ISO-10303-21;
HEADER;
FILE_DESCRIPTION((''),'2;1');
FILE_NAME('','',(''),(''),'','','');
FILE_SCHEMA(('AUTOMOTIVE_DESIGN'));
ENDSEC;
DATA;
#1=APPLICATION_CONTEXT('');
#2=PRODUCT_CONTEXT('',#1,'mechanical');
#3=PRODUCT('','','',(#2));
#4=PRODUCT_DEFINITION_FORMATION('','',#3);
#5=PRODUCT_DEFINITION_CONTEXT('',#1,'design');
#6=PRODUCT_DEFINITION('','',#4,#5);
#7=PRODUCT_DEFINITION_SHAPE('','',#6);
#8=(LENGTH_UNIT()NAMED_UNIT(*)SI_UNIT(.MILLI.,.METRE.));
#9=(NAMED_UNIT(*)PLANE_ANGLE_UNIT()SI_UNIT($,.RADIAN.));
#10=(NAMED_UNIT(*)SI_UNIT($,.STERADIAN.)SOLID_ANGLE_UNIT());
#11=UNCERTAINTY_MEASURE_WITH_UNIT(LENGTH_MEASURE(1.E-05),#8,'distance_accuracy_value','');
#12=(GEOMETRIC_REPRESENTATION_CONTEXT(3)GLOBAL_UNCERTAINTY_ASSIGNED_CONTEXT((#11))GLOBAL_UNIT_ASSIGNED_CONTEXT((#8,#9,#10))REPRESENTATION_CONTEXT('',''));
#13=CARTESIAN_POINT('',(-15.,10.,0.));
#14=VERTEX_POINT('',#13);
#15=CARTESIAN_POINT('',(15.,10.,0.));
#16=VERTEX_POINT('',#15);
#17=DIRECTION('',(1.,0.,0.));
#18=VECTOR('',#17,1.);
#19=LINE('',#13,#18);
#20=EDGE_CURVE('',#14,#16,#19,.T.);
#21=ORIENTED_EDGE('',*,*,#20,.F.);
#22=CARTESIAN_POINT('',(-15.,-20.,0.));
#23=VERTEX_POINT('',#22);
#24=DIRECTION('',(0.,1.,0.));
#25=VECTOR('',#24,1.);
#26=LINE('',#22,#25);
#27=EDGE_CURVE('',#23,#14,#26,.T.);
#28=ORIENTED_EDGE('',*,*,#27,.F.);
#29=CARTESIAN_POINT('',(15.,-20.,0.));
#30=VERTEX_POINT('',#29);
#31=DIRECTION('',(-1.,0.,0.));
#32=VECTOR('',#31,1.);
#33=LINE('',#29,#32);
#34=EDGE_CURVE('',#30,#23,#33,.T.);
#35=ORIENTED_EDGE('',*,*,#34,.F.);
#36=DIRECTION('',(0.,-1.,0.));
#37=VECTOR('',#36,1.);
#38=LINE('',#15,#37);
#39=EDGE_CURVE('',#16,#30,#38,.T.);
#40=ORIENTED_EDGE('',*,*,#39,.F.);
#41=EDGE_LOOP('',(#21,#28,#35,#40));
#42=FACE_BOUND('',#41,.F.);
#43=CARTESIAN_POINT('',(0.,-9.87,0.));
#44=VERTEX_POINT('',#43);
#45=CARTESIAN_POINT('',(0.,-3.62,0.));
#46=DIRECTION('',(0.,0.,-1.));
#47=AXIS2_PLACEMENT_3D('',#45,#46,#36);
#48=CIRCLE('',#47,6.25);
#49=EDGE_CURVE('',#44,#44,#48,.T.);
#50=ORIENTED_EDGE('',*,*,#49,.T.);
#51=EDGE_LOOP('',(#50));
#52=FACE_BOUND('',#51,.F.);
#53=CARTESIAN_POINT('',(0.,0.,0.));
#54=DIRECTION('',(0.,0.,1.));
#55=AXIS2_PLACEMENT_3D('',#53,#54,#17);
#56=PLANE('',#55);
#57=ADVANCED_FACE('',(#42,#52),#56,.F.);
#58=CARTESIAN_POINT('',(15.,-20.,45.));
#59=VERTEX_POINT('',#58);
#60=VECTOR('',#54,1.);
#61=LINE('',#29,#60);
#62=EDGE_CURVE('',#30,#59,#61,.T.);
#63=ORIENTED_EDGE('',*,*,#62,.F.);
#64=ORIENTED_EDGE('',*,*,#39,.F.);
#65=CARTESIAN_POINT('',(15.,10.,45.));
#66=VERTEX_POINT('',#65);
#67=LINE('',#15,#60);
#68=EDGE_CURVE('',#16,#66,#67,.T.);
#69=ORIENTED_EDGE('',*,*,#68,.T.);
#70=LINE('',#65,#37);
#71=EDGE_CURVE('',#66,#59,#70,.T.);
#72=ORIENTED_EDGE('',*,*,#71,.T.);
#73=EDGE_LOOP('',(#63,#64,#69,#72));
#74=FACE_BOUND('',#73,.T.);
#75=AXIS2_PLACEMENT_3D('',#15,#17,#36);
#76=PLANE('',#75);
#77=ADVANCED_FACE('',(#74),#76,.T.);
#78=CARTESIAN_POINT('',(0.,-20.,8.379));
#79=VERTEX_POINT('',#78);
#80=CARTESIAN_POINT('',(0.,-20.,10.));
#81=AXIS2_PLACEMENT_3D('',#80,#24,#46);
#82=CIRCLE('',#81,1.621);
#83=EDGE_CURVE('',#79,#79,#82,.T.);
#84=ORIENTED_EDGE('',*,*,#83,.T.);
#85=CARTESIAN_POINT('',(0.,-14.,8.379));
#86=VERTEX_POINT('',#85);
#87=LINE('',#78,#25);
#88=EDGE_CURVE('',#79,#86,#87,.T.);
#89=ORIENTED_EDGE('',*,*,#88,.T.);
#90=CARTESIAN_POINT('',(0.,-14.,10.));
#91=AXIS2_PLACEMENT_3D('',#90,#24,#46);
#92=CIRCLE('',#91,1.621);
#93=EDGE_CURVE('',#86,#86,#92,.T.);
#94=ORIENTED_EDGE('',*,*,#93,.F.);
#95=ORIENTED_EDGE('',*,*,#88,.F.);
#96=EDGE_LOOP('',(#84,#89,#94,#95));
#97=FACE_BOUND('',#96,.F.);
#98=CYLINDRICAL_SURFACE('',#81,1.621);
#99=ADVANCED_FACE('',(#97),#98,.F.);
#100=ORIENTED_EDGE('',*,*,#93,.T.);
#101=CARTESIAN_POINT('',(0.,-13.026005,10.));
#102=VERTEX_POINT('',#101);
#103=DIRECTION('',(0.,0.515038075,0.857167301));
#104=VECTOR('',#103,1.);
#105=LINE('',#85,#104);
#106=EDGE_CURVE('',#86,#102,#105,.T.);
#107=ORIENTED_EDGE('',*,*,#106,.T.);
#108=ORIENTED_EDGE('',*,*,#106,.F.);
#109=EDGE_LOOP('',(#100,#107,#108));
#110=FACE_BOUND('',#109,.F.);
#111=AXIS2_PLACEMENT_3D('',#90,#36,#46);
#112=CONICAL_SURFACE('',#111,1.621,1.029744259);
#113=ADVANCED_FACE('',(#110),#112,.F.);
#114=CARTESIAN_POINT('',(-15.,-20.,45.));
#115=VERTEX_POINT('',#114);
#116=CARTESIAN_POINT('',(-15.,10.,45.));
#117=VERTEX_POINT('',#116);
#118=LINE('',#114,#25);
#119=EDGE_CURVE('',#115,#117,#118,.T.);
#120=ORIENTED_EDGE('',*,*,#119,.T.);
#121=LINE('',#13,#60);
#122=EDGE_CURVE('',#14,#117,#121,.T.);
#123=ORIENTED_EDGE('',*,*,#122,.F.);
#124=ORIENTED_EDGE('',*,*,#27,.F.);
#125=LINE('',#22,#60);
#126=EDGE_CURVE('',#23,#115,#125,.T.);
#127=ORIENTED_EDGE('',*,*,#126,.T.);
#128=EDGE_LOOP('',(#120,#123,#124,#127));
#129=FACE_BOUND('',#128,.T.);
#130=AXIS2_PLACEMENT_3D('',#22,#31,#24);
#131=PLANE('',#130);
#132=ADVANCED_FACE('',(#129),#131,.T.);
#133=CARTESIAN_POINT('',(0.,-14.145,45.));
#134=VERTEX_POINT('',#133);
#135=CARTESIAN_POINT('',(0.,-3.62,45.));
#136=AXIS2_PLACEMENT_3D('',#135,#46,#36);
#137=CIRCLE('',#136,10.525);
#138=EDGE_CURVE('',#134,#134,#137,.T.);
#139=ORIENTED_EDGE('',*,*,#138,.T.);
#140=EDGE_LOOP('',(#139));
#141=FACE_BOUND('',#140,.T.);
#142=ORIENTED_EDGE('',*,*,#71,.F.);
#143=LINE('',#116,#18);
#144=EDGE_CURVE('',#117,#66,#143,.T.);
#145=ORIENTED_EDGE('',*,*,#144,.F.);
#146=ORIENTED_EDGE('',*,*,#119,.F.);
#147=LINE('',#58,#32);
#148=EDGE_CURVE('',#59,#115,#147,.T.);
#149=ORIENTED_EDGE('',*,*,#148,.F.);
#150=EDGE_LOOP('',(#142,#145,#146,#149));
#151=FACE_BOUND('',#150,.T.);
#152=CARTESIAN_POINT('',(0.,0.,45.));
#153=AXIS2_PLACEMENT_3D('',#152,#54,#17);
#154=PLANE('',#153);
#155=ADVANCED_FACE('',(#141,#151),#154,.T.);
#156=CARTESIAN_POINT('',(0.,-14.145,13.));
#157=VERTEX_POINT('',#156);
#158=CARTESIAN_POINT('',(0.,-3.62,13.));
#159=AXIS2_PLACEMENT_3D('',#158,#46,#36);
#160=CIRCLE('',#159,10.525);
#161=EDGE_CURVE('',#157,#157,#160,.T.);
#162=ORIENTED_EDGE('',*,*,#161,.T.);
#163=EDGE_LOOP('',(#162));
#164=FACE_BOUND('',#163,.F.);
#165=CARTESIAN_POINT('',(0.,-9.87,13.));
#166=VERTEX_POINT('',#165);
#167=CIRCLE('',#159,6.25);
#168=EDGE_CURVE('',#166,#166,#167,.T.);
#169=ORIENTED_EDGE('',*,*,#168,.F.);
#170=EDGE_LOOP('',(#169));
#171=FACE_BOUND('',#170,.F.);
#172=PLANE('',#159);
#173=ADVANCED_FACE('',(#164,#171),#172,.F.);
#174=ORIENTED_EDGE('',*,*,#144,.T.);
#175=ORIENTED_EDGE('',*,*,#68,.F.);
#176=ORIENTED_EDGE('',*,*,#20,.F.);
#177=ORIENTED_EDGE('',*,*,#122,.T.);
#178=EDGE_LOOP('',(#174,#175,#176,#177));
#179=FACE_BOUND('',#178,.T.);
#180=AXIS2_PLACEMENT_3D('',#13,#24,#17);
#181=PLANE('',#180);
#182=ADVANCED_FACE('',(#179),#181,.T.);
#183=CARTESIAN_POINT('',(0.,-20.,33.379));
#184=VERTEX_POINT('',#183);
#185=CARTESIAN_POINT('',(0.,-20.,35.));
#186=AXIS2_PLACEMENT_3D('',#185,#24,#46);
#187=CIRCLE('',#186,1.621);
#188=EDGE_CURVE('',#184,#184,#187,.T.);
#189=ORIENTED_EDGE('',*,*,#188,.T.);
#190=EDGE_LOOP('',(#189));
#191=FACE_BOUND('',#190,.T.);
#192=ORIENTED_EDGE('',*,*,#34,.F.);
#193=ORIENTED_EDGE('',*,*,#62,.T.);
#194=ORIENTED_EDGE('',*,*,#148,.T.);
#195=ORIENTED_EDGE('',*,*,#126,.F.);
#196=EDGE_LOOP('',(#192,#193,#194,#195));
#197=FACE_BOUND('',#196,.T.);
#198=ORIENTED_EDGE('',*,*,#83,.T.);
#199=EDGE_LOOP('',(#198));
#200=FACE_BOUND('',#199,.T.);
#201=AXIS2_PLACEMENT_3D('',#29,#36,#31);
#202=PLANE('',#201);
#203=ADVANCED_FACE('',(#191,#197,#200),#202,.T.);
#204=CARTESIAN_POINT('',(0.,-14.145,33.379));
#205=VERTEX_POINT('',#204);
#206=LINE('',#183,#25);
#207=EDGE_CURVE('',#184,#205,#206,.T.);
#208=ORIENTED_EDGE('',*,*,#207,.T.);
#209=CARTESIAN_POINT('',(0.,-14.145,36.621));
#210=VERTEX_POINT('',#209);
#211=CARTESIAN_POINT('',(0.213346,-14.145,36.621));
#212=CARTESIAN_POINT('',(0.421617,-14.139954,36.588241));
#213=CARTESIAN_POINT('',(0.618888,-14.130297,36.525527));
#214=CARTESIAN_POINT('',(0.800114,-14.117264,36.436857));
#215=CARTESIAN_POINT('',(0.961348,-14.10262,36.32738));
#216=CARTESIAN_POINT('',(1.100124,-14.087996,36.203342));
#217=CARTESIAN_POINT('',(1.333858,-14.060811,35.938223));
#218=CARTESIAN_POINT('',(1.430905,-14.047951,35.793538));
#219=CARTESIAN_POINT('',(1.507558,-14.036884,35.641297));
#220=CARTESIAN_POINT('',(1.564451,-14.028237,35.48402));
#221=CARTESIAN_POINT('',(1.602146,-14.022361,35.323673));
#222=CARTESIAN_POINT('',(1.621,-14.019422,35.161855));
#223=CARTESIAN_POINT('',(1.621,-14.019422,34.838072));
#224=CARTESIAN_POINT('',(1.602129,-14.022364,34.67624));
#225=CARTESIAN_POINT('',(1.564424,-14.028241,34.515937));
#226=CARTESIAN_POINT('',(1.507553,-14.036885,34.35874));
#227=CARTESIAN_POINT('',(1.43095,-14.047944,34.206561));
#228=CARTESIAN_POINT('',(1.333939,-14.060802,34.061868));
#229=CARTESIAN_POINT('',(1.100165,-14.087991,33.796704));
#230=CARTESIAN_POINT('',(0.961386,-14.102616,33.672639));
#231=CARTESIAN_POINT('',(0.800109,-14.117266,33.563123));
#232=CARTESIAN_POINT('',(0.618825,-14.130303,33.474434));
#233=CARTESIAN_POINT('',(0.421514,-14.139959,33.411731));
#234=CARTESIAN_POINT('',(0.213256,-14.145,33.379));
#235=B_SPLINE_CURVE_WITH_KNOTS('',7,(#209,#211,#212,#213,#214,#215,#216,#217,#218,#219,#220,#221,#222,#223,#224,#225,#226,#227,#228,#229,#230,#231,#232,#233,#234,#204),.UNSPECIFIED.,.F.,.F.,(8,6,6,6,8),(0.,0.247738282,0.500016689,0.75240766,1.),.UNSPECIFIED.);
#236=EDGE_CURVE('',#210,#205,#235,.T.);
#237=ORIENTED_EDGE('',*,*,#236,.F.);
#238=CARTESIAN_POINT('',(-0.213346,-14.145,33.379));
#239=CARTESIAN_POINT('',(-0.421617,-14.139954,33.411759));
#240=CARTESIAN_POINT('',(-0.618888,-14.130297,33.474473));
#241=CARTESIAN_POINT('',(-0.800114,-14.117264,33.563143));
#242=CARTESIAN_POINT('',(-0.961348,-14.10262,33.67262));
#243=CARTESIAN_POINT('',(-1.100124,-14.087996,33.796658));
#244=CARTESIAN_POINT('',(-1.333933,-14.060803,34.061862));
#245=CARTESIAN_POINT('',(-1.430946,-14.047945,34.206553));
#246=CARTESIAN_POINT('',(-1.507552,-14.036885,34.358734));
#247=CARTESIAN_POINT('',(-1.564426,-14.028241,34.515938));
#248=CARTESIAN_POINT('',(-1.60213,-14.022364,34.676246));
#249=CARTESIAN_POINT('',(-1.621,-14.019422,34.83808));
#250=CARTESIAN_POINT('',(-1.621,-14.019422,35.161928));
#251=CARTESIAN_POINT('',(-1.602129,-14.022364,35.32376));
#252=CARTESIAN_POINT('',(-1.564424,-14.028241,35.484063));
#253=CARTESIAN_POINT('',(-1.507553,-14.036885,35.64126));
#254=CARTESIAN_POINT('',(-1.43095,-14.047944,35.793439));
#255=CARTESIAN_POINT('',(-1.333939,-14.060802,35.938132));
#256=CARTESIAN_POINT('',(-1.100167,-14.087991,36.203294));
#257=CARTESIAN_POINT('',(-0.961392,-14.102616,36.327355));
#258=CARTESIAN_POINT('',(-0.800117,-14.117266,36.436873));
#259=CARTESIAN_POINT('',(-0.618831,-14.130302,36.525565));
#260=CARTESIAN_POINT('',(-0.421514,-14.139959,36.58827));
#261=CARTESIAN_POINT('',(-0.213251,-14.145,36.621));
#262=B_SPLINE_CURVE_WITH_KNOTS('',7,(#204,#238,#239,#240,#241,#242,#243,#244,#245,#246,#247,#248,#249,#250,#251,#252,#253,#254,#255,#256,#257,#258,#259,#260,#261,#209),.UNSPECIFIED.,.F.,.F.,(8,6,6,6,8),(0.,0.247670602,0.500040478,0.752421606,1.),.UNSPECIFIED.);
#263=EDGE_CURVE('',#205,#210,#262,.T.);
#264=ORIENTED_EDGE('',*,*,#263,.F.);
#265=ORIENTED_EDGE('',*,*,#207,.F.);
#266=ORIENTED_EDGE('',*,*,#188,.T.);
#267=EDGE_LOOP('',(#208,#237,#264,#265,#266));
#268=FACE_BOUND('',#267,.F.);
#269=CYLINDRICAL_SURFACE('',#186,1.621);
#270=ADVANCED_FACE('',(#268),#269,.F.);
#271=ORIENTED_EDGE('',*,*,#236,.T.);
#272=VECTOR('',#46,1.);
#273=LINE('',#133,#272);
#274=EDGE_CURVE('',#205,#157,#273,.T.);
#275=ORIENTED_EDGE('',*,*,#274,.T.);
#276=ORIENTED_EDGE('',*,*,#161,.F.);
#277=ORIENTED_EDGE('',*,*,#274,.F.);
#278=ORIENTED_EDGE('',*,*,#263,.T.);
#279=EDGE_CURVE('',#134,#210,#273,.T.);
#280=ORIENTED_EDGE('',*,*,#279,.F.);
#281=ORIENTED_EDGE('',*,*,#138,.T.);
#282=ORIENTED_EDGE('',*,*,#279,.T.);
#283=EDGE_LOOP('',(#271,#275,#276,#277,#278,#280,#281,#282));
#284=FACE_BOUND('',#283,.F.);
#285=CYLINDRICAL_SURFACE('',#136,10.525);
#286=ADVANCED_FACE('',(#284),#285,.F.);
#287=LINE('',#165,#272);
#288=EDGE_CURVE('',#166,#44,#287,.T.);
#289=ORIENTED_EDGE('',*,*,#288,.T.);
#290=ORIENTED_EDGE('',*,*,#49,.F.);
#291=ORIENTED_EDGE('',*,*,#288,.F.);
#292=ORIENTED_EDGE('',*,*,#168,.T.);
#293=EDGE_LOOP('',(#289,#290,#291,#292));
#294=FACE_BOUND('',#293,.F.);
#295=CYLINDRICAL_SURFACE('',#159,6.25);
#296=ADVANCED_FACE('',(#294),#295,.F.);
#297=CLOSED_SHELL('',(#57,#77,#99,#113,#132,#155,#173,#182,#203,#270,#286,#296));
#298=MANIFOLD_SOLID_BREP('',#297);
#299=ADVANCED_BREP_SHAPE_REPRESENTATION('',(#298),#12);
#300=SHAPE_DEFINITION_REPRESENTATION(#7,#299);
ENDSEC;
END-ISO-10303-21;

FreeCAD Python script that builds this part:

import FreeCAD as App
import Part
import Sketcher

V = App.Vector
Q = App.Units.Quantity


def add_polygon(sketch, points):
    """Adds a closed chain of lines whose ends are joined by coincident constraints."""
    first, n = sketch.GeometryCount, len(points)
    for a, b in zip(points, points[1:] + points[:1]):
        sketch.addGeometry(Part.LineSegment(App.Vector(*a, 0), App.Vector(*b, 0)), False)
    for i in range(n):
        sketch.addConstraint(Sketcher.Constraint("Coincident", first + i, 2, first + (i + 1) % n, 1))

doc = App.newDocument("Part")
body = doc.addObject("PartDesign::Body", "Body")

sketch1 = body.newObject("Sketcher::SketchObject", "Sketch")
sketch1.AttachmentSupport = (doc.getObject("XY_Plane"), [""])
sketch1.MapMode = "FlatFace"
add_polygon(sketch1, [(15, 10), (-15, 10), (-15, -20), (15, -20)])
sketch1.addConstraint(Sketcher.Constraint("Horizontal", 0))
sketch1.addConstraint(Sketcher.Constraint("Vertical", 1))
sketch1.addConstraint(Sketcher.Constraint("Horizontal", 2))
sketch1.addConstraint(Sketcher.Constraint("Vertical", 3))
sketch1.addConstraint(Sketcher.Constraint("Equal", 2, 1))
sketch1.addConstraint(Sketcher.Constraint("DistanceX", 0, 2, 0, 1, Q("30 mm")))
sketch1.addConstraint(Sketcher.Constraint("DistanceX", 0, 2, -1, 1, Q("15 mm")))
sketch1.addConstraint(Sketcher.Constraint("DistanceY", -1, 1, 0, 2, Q("10 mm")))
pad1 = body.newObject("PartDesign::Pad", "Pad")
pad1.Profile = sketch1
pad1.Length = 45

sketch2 = body.newObject("Sketcher::SketchObject", "Sketch001")
sketch2.AttachmentSupport = (doc.getObject("XY_Plane"), [""])
sketch2.MapMode = "FlatFace"
sketch2.AttachmentOffset = App.Placement(V(0, 0, 45), App.Rotation())
sketch2.addGeometry(Part.Circle(V(0, -4, 0), V(0, 0, 1), 6), False)
sketch2.addConstraint(Sketcher.Constraint("PointOnObject", 0, 3, -2))
sketch2.addConstraint(Sketcher.Constraint("Diameter", 0, Q("12.5 mm")))
sketch2.addConstraint(Sketcher.Constraint("DistanceY", 0, 3, -1, 1, Q("3.62 mm")))
doc.recompute()
hole = body.newObject("PartDesign::Hole", "Hole")
hole.Profile = sketch2
hole.ThreadType = "None"
hole.Diameter = 12.5
hole.DepthType = "ThroughAll"
hole.HoleCutType = "Counterbore"
hole.HoleCutDiameter = 21.05
hole.HoleCutDepth = 32

sketch3 = body.newObject("Sketcher::SketchObject", "Sketch002")
sketch3.AttachmentSupport = (doc.getObject("XZ_Plane"), [""])
sketch3.MapMode = "FlatFace"
sketch3.AttachmentOffset = App.Placement(V(0, 0, 20), App.Rotation())
sketch3.addGeometry(Part.Circle(V(0, 10, 0), V(0, 0, 1), 1.6), False)
sketch3.addGeometry(Part.Circle(V(0, 35, 0), V(0, 0, 1), 1.6), False)
sketch3.addConstraint(Sketcher.Constraint("Equal", 0, 1))
sketch3.addConstraint(Sketcher.Constraint("PointOnObject", 0, 3, -2))
sketch3.addConstraint(Sketcher.Constraint("PointOnObject", 1, 3, -2))
sketch3.addConstraint(Sketcher.Constraint("Diameter", 0, Q("3.242 mm")))
sketch3.addConstraint(Sketcher.Constraint("DistanceY", -1, 1, 0, 3, Q("10 mm")))
sketch3.addConstraint(Sketcher.Constraint("DistanceY", -1, 1, 1, 3, Q("35 mm")))
doc.recompute()
hole2 = body.newObject("PartDesign::Hole", "Hole001")
hole2.Profile = sketch3
hole2.ThreadType = "None"
hole2.Diameter = 3.242
hole2.DepthType = "Dimension"
hole2.Depth = 6
hole2.DrillPoint = "Angled"
hole2.DrillPointAngle = 118

doc.recompute()
